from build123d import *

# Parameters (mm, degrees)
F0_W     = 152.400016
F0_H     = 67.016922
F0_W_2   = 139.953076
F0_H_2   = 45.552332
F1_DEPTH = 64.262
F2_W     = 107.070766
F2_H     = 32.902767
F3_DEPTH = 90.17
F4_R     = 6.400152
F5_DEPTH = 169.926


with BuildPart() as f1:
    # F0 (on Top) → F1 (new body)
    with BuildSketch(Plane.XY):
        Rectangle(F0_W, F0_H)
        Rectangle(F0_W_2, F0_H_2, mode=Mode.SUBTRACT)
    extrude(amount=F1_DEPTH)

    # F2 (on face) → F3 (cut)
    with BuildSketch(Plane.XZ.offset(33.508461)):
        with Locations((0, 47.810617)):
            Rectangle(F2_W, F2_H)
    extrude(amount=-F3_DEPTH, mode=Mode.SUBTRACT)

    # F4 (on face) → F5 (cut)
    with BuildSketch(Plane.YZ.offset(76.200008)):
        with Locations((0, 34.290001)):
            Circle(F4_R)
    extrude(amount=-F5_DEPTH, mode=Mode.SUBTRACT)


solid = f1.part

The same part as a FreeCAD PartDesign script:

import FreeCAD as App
import Part
import Sketcher
from FreeCAD import Vector
Q = App.Units.Quantity


def add_polygon(sketch, points):
    """Adds a closed chain of lines whose ends are joined by coincident constraints."""
    first, n = sketch.GeometryCount, len(points)
    for a, b in zip(points, points[1:] + points[:1]):
        sketch.addGeometry(Part.LineSegment(App.Vector(*a, 0), App.Vector(*b, 0)), False)
    for i in range(n):
        sketch.addConstraint(Sketcher.Constraint("Coincident", first + i, 2, first + (i + 1) % n, 1))

doc = App.newDocument("Part")
params = doc.addObject("Spreadsheet::Sheet", "Params")
for row, (alias, value) in enumerate([
    ("pad1_length", "2.53 in"),
    ("pocket1_length", "3.55 in"),
    ("pocket2_length", "6.69 in"),
], start=1):
    params.set(f"A{row}", alias)
    params.set(f"B{row}", "=" + value)
    params.setAlias(f"B{row}", alias)

body = doc.addObject("PartDesign::Body", "Body")

sketch1 = doc.addObject("Sketcher::SketchObject", "Sketch")
body.addObject(sketch1)
sketch1.AttachmentSupport = (doc.XY_Plane, [""])
sketch1.MapMode = "FlatFace"
add_polygon(sketch1, [(-76, 34), (-76, -34), (76, -34), (76, 34)])
add_polygon(sketch1, [(70, -23), (-70, -23), (-70, 23), (70, 23)])
sketch1.addConstraint([
    Sketcher.Constraint("Vertical", 0),
    Sketcher.Constraint("Horizontal", 1),
    Sketcher.Constraint("Vertical", 2),
    Sketcher.Constraint("Horizontal", 3),
    Sketcher.Constraint("Horizontal", 4),
    Sketcher.Constraint("Vertical", 5),
    Sketcher.Constraint("Horizontal", 6),
    Sketcher.Constraint("Vertical", 7),
    Sketcher.Constraint("Symmetric", 0, 2, 2, 2, -1, 1),
    Sketcher.Constraint("Symmetric", 4, 2, 6, 2, -1, 1),
    Sketcher.Constraint("DistanceY", 0, 2, 0, 1, 67.016922),
    Sketcher.Constraint("DistanceX", 1, 1, 1, 2, 152.400016),
    Sketcher.Constraint("DistanceX", 4, 2, 4, 1, 139.953076),
    Sketcher.Constraint("DistanceY", 5, 1, 5, 2, 45.552332),
])
pad1 = doc.addObject("PartDesign::Pad", "Pad")
body.addObject(pad1)
pad1.Profile = sketch1
pad1.setExpression("Length", "Params.pad1_length")

sketch2 = doc.addObject("Sketcher::SketchObject", "Sketch001")
body.addObject(sketch2)
sketch2.AttachmentSupport = (doc.XZ_Plane, [""])
sketch2.MapMode = "FlatFace"
sketch2.AttachmentOffset = App.Placement(Vector(0, 0, 33.508461), App.Rotation())
add_polygon(sketch2, [(-54, 64), (-54, 31), (54, 31), (54, 64)])
sketch2.addConstraint([
    Sketcher.Constraint("Vertical", 0),
    Sketcher.Constraint("Horizontal", 1),
    Sketcher.Constraint("Vertical", 2),
    Sketcher.Constraint("Horizontal", 3),
    Sketcher.Constraint("DistanceY", -1, 1, 2, 2, Q("2.53 in")),
    Sketcher.Constraint("DistanceX", 1, 1, 1, 2, 107.070766),
    Sketcher.Constraint("DistanceY", 0, 2, 0, 1, 32.902767),
    Sketcher.Constraint("DistanceX", 0, 2, -1, 1, 53.535383),
])
pocket1 = doc.addObject("PartDesign::Pocket", "Pocket")
body.addObject(pocket1)
pocket1.Profile = sketch2
pocket1.setExpression("Length", "Params.pocket1_length")

sketch3 = doc.addObject("Sketcher::SketchObject", "Sketch002")
body.addObject(sketch3)
sketch3.AttachmentSupport = (doc.YZ_Plane, [""])
sketch3.MapMode = "FlatFace"
sketch3.AttachmentOffset = App.Placement(Vector(0, 0, 76.200008), App.Rotation())
sketch3.addGeometry(Part.Circle(Vector(0, 34, 0), Vector(0, 0, 1), 6), False)
sketch3.addConstraint([
    Sketcher.Constraint("PointOnObject", 0, 3, -2),
    Sketcher.Constraint("DistanceY", -1, 1, 0, 3, Q("1.35 in")),
    Sketcher.Constraint("Diameter", 0, 12.800304),
])
pocket2 = doc.addObject("PartDesign::Pocket", "Pocket001")
body.addObject(pocket2)
pocket2.Profile = sketch3
pocket2.setExpression("Length", "Params.pocket2_length")

doc.recompute()
